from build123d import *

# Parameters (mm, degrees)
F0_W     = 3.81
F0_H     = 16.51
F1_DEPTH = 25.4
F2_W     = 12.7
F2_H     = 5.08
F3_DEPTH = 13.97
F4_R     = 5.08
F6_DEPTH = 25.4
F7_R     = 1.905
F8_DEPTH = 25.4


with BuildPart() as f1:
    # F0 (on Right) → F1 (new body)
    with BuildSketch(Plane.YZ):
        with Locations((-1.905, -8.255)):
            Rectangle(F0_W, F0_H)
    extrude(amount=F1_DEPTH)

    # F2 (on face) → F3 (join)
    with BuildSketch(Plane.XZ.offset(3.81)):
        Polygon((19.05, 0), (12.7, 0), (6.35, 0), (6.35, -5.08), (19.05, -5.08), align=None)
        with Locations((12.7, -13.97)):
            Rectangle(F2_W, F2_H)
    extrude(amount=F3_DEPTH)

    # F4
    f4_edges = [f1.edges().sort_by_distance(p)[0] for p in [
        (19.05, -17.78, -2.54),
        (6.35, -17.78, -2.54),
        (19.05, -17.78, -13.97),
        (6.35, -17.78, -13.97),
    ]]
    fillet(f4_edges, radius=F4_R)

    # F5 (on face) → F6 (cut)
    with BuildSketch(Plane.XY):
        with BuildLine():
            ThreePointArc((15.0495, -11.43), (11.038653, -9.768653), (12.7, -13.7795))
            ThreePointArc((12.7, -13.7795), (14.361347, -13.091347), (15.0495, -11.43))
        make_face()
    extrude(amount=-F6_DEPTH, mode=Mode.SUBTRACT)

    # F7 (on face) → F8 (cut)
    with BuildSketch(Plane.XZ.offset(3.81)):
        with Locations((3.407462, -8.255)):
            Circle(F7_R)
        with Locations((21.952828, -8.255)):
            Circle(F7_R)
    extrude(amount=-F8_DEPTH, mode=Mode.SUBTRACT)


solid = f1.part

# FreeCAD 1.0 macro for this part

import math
import FreeCAD as App
import Part
import Sketcher
from FreeCAD import Vector
Q = App.Units.Quantity


def edges_at(feature, points):
    """Names of the edges that pass closest to the given points."""
    edges = feature.Shape.Edges
    near = lambda p: min(range(len(edges)), key=lambda i: edges[i].distToShape(Part.Vertex(*p))[0])
    return sorted({f"Edge{near(p) + 1}" for p in points})

doc = App.newDocument("Part")
body = doc.addObject("PartDesign::Body", "Body")

# Sketch on YZ plane
sketch1 = doc.addObject("Sketcher::SketchObject", "Sketch")
body.addObject(sketch1)
sketch1.AttachmentSupport = (doc.YZ_Plane, [""])
sketch1.MapMode = "FlatFace"
sketch1.addGeometry(Part.LineSegment(Vector(-3.8, 0, 0), Vector(-3.8, -16.5, 0)), False)
sketch1.addGeometry(Part.LineSegment(Vector(-3.8, -16.5, 0), Vector(0, -16.5, 0)), False)
sketch1.addGeometry(Part.LineSegment(Vector(0, -16.5, 0), Vector(0, 0, 0)), False)
sketch1.addGeometry(Part.LineSegment(Vector(0, 0, 0), Vector(-3.8, 0, 0)), False)
sketch1.addConstraint(Sketcher.Constraint("Coincident", 0, 2, 1, 1))
sketch1.addConstraint(Sketcher.Constraint("Coincident", 1, 2, 2, 1))
sketch1.addConstraint(Sketcher.Constraint("Coincident", 2, 2, 3, 1))
sketch1.addConstraint(Sketcher.Constraint("Coincident", 3, 2, 0, 1))
sketch1.addConstraint(Sketcher.Constraint("Vertical", 0))
sketch1.addConstraint(Sketcher.Constraint("Horizontal", 1))
sketch1.addConstraint(Sketcher.Constraint("Vertical", 2))
sketch1.addConstraint(Sketcher.Constraint("Horizontal", 3))
sketch1.addConstraint(Sketcher.Constraint("Coincident", 2, 2, -1, 1))
sketch1.addConstraint(Sketcher.Constraint("DistanceX", 1, 1, 1, 2, Q("0.15 in")))
sketch1.addConstraint(Sketcher.Constraint("DistanceY", 0, 2, 0, 1, Q("0.65 in")))
pad1 = doc.addObject("PartDesign::Pad", "Pad")
body.addObject(pad1)
pad1.Profile = sketch1
pad1.Length = Q("1 in")

# Sketch on XZ plane
sketch2 = doc.addObject("Sketcher::SketchObject", "Sketch001")
body.addObject(sketch2)
sketch2.AttachmentSupport = (doc.XZ_Plane, [""])
sketch2.MapMode = "FlatFace"
sketch2.AttachmentOffset = App.Placement(Vector(0, 0, 0.15 * 25.4), App.Rotation())
sketch2.addGeometry(Part.LineSegment(Vector(19, 0, 0), Vector(6, 0, 0)), False)
sketch2.addGeometry(Part.LineSegment(Vector(6, 0, 0), Vector(6, -5, 0)), False)
sketch2.addGeometry(Part.LineSegment(Vector(6, -5, 0), Vector(19, -5, 0)), False)
sketch2.addGeometry(Part.LineSegment(Vector(19, -5, 0), Vector(19, 0, 0)), False)
sketch2.addGeometry(Part.LineSegment(Vector(6, -11, 0), Vector(6, -17, 0)), False)
sketch2.addGeometry(Part.LineSegment(Vector(6, -17, 0), Vector(19, -17, 0)), False)
sketch2.addGeometry(Part.LineSegment(Vector(19, -17, 0), Vector(19, -11, 0)), False)
sketch2.addGeometry(Part.LineSegment(Vector(19, -11, 0), Vector(6, -11, 0)), False)
sketch2.addConstraint(Sketcher.Constraint("Coincident", 0, 2, 1, 1))
sketch2.addConstraint(Sketcher.Constraint("Coincident", 1, 2, 2, 1))
sketch2.addConstraint(Sketcher.Constraint("Coincident", 2, 2, 3, 1))
sketch2.addConstraint(Sketcher.Constraint("Coincident", 3, 2, 0, 1))
sketch2.addConstraint(Sketcher.Constraint("Coincident", 4, 2, 5, 1))
sketch2.addConstraint(Sketcher.Constraint("Coincident", 5, 2, 6, 1))
sketch2.addConstraint(Sketcher.Constraint("Coincident", 6, 2, 7, 1))
sketch2.addConstraint(Sketcher.Constraint("Coincident", 7, 2, 4, 1))
sketch2.addConstraint(Sketcher.Constraint("Horizontal", 0))
sketch2.addConstraint(Sketcher.Constraint("Vertical", 1))
sketch2.addConstraint(Sketcher.Constraint("Horizontal", 2))
sketch2.addConstraint(Sketcher.Constraint("Vertical", 3))
sketch2.addConstraint(Sketcher.Constraint("Vertical", 4))
sketch2.addConstraint(Sketcher.Constraint("Horizontal", 5))
sketch2.addConstraint(Sketcher.Constraint("Vertical", 6))
sketch2.addConstraint(Sketcher.Constraint("Horizontal", 7))
sketch2.addConstraint(Sketcher.Constraint("PointOnObject", 0, 2, -1))
sketch2.addConstraint(Sketcher.Constraint("Vertical", 1, 2, 4, 2))
sketch2.addConstraint(Sketcher.Constraint("Vertical", 3, 2, 5, 2))
sketch2.addConstraint(Sketcher.Constraint("Equal", 3, 4))
sketch2.addConstraint(Sketcher.Constraint("DistanceX", 0, 2, 0, 1, Q("0.5 in")))
sketch2.addConstraint(Sketcher.Constraint("DistanceY", 1, 2, 1, 1, Q("0.2 in")))
sketch2.addConstraint(Sketcher.Constraint("DistanceX", -1, 1, 0, 2, Q("0.25 in")))
sketch2.addConstraint(Sketcher.Constraint("DistanceY", 4, 2, -1, 1, Q("0.65 in")))
pad2 = doc.addObject("PartDesign::Pad", "Pad001")
body.addObject(pad2)
pad2.Profile = sketch2
pad2.Length = Q("0.55 in")
doc.recompute()

fillet = doc.addObject("PartDesign::Fillet", "Fillet")
body.addObject(fillet)
fillet.Base = (pad2, edges_at(pad2, [
    (19.05, -17.78, -2.54),
    (6.35, -17.78, -2.54),
    (19.05, -17.78, -13.97),
    (6.35, -17.78, -13.97),
]))
fillet.Radius = Q("0.2 in")

# Sketch on XY plane
sketch3 = doc.addObject("Sketcher::SketchObject", "Sketch002")
body.addObject(sketch3)
sketch3.AttachmentSupport = (doc.XY_Plane, [""])
sketch3.MapMode = "FlatFace"
sketch3.addGeometry(Part.ArcOfCircle(Part.Circle(Vector(12.7, -11.4, 0), Vector(0, 0, 1), 2.3), math.radians(0), math.radians(270)), False)
sketch3.addGeometry(Part.ArcOfCircle(Part.Circle(Vector(12.7, -11.4, 0), Vector(0, 0, 1), 2.3), math.radians(-90), math.radians(0)), False)
sketch3.addConstraint(Sketcher.Constraint("Tangent", 0, 1, 1, 2))
sketch3.addConstraint(Sketcher.Constraint("Coincident", 1, 1, 0, 2))
sketch3.addConstraint(Sketcher.Constraint("Horizontal", 1, 3, 0, 1))
sketch3.addConstraint(Sketcher.Constraint("Vertical", 0, 3, 1, 1))
sketch3.addConstraint(Sketcher.Constraint("DistanceX", -1, 1, 0, 3, Q("0.5 in")))
sketch3.addConstraint(Sketcher.Constraint("Radius", 0, Q("0.0925 in")))
sketch3.addConstraint(Sketcher.Constraint("DistanceY", 0, 3, -1, 1, Q("0.45 in")))
pocket1 = doc.addObject("PartDesign::Pocket", "Pocket")
body.addObject(pocket1)
pocket1.Profile = sketch3
pocket1.Length = Q("1 in")

# Sketch on XZ plane
sketch4 = doc.addObject("Sketcher::SketchObject", "Sketch003")
body.addObject(sketch4)
sketch4.AttachmentSupport = (doc.XZ_Plane, [""])
sketch4.MapMode = "FlatFace"
sketch4.AttachmentOffset = App.Placement(Vector(0, 0, 0.15 * 25.4), App.Rotation())
sketch4.addGeometry(Part.Circle(Vector(3.4, -8.3, 0), Vector(0, 0, 1), 1.9), False)
sketch4.addGeometry(Part.Circle(Vector(22, -8.3, 0), Vector(0, 0, 1), 1.9), False)
sketch4.addConstraint(Sketcher.Constraint("Equal", 0, 1))
sketch4.addConstraint(Sketcher.Constraint("Horizontal", 0, 3, 1, 3))
sketch4.addConstraint(Sketcher.Constraint("Diameter", 0, Q("0.15 in")))
sketch4.addConstraint(Sketcher.Constraint("DistanceY", 0, 3, -1, 1, Q("0.325 in")))
sketch4.addConstraint(Sketcher.Constraint("DistanceX", -1, 1, 1, 3, 21.952828))
sketch4.addConstraint(Sketcher.Constraint("DistanceX", -1, 1, 0, 3, 3.407462))
pocket2 = doc.addObject("PartDesign::Pocket", "Pocket001")
body.addObject(pocket2)
pocket2.Profile = sketch4
pocket2.Length = Q("1 in")

doc.recompute()
